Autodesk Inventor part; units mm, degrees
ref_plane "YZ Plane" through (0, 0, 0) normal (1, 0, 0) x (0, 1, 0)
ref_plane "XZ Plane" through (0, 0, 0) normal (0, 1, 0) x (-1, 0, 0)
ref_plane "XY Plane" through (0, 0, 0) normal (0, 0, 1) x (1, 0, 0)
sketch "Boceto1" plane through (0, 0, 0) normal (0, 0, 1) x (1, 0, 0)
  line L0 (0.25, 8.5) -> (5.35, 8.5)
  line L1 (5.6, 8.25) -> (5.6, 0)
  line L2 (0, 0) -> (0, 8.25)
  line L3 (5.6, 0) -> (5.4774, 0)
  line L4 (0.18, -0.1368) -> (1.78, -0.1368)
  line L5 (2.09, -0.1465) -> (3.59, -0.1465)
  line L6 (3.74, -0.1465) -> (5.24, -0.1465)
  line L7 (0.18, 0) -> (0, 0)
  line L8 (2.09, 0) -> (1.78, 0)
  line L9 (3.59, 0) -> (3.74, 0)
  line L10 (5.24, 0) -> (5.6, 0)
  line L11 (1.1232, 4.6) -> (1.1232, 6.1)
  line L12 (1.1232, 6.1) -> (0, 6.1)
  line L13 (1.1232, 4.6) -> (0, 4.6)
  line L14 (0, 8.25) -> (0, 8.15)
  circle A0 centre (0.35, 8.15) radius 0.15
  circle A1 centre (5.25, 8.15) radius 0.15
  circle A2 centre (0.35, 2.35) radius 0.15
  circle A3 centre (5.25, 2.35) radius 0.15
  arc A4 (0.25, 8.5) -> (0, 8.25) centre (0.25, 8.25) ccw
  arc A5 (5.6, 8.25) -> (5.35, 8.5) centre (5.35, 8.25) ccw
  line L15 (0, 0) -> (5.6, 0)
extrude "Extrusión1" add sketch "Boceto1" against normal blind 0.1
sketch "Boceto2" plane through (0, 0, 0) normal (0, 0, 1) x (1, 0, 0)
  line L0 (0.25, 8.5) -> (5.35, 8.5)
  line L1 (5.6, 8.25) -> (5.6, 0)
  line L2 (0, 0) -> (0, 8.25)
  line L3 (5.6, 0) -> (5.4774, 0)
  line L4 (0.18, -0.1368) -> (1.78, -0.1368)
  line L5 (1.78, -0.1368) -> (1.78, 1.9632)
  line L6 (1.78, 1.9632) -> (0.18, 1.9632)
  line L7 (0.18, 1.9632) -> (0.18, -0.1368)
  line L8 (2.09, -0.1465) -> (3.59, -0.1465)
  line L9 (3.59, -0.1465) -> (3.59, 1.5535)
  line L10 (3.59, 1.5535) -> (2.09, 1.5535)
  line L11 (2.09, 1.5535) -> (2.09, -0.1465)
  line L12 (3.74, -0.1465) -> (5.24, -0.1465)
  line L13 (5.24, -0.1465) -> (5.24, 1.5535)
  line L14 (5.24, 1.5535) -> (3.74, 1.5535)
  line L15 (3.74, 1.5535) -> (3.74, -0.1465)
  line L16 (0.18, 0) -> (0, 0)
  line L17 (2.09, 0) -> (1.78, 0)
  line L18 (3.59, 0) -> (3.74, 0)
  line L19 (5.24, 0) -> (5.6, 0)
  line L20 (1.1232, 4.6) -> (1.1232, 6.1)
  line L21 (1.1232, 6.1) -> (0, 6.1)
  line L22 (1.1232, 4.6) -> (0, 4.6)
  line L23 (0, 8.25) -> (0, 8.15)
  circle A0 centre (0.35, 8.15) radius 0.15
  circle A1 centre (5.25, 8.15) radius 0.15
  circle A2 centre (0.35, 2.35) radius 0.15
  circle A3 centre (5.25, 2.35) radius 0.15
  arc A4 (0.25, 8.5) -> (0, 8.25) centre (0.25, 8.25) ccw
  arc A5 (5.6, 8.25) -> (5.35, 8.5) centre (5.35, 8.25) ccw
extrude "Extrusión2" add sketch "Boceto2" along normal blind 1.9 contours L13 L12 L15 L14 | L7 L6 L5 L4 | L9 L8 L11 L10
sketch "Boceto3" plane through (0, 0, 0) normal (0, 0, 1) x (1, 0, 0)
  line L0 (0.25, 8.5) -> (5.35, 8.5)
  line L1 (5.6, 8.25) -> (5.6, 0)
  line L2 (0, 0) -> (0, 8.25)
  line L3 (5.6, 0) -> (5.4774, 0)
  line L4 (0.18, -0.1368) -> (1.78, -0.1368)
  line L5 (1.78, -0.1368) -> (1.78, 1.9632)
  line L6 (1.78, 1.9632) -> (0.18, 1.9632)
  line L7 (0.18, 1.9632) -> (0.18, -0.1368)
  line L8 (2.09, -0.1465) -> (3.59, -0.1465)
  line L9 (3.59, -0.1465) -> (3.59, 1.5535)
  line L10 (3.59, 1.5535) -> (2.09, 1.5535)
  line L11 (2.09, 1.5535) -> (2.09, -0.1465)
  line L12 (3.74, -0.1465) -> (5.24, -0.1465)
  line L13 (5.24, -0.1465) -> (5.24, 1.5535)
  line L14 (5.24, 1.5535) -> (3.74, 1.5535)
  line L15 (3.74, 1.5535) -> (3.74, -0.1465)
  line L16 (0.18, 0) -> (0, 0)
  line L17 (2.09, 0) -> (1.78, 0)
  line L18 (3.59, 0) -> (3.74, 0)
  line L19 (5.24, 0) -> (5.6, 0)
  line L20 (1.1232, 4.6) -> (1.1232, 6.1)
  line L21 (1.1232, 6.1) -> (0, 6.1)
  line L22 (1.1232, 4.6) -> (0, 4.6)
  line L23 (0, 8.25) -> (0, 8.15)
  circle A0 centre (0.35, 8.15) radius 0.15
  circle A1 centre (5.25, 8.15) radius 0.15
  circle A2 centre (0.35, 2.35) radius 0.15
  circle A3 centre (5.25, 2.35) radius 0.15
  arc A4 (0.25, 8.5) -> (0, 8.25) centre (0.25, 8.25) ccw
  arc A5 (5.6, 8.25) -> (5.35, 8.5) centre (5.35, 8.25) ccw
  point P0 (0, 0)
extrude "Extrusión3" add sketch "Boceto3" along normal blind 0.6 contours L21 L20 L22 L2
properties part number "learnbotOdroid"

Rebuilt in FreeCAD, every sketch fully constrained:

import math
import FreeCAD as App
import Part
import Sketcher

V = App.Vector
Q = App.Units.Quantity

doc = App.newDocument("Part")
body = doc.addObject("PartDesign::Body", "Body")

sketch1 = doc.addObject("Sketcher::SketchObject", "Sketch")
body.addObject(sketch1)
sketch1.AttachmentSupport = (doc.XY_Plane, [""])
sketch1.MapMode = "FlatFace"
sketch1.addGeometry([
    Part.LineSegment(V(5.35, 8.5, 0), V(0.25, 8.5, 0)),
    Part.ArcOfCircle(Part.Circle(V(0.25, 8.25, 0), V(0, 0, 1), 0.25), math.radians(90), math.radians(180)),
    Part.LineSegment(V(0, 8.25, 0), V(0, 0, 0)),
    Part.LineSegment(V(0, 0, 0), V(5.6, 0, 0)),
    Part.LineSegment(V(5.6, 0, 0), V(5.6, 8.25, 0)),
    Part.ArcOfCircle(Part.Circle(V(5.35, 8.25, 0), V(0, 0, 1), 0.25), math.radians(0), math.radians(90)),
    Part.Circle(V(0.35, 2.35, 0), V(0, 0, 1), 0.15),
    Part.Circle(V(5.25, 2.35, 0), V(0, 0, 1), 0.15),
    Part.Circle(V(0.35, 8.15, 0), V(0, 0, 1), 0.15),
    Part.Circle(V(5.25, 8.15, 0), V(0, 0, 1), 0.15),
], False)
sketch1.addConstraint([
    Sketcher.Constraint("Tangent", 0, 2, 1, 1),
    Sketcher.Constraint("Tangent", 1, 2, 2, 1),
    Sketcher.Constraint("Coincident", 2, 2, 3, 1),
    Sketcher.Constraint("Coincident", 3, 2, 4, 1),
    Sketcher.Constraint("Tangent", 4, 2, 5, 1),
    Sketcher.Constraint("Tangent", 5, 2, 0, 1),
    Sketcher.Constraint("Horizontal", 0),
    Sketcher.Constraint("Vertical", 2),
    Sketcher.Constraint("Horizontal", 3),
    Sketcher.Constraint("Vertical", 4),
    Sketcher.Constraint("Coincident", 2, 2, -1, 1),
    Sketcher.Constraint("Equal", 1, 5),
    Sketcher.Constraint("Equal", 6, 7),
    Sketcher.Constraint("Equal", 7, 8),
    Sketcher.Constraint("Equal", 8, 9),
    Sketcher.Constraint("Horizontal", 6, 3, 7, 3),
    Sketcher.Constraint("Horizontal", 8, 3, 9, 3),
    Sketcher.Constraint("Vertical", 6, 3, 8, 3),
    Sketcher.Constraint("Vertical", 7, 3, 9, 3),
    Sketcher.Constraint("Diameter", 6, Q("0.3 mm")),
    Sketcher.Constraint("Radius", 1, Q("0.25 mm")),
    Sketcher.Constraint("DistanceX", 0, 2, 0, 1, Q("5.1 mm")),
    Sketcher.Constraint("DistanceX", 6, 3, 5, 3, Q("5 mm")),
    Sketcher.Constraint("DistanceX", 1, 3, 7, 3, Q("5 mm")),
    Sketcher.Constraint("DistanceY", 2, 2, 2, 1, Q("8.25 mm")),
    Sketcher.Constraint("DistanceY", 6, 3, 1, 3, Q("5.9 mm")),
    Sketcher.Constraint("DistanceY", 8, 3, 1, 3, Q("0.1 mm")),
])
pad1 = doc.addObject("PartDesign::Pad", "Pad")
body.addObject(pad1)
pad1.Profile = sketch1
pad1.Length = 0.1
pad1.Reversed = True

sketch2 = doc.addObject("Sketcher::SketchObject", "Sketch001")
body.addObject(sketch2)
sketch2.AttachmentSupport = (doc.XY_Plane, [""])
sketch2.MapMode = "FlatFace"
sketch2.addGeometry([
    Part.LineSegment(V(5.24, -0.1465, 0), V(5.24, 1.5535, 0)),
    Part.LineSegment(V(5.24, 1.5535, 0), V(3.74, 1.5535, 0)),
    Part.LineSegment(V(3.74, 1.5535, 0), V(3.74, -0.1465, 0)),
    Part.LineSegment(V(3.74, -0.1465, 0), V(5.24, -0.1465, 0)),
    Part.LineSegment(V(0.18, 1.9632, 0), V(0.18, -0.1368, 0)),
    Part.LineSegment(V(0.18, -0.1368, 0), V(1.78, -0.1368, 0)),
    Part.LineSegment(V(1.78, -0.1368, 0), V(1.78, 1.9632, 0)),
    Part.LineSegment(V(1.78, 1.9632, 0), V(0.18, 1.9632, 0)),
    Part.LineSegment(V(3.59, -0.1465, 0), V(3.59, 1.5535, 0)),
    Part.LineSegment(V(3.59, 1.5535, 0), V(2.09, 1.5535, 0)),
    Part.LineSegment(V(2.09, 1.5535, 0), V(2.09, -0.1465, 0)),
    Part.LineSegment(V(2.09, -0.1465, 0), V(3.59, -0.1465, 0)),
], False)
sketch2.addConstraint([
    Sketcher.Constraint("Coincident", 0, 2, 1, 1),
    Sketcher.Constraint("Coincident", 1, 2, 2, 1),
    Sketcher.Constraint("Coincident", 2, 2, 3, 1),
    Sketcher.Constraint("Coincident", 3, 2, 0, 1),
    Sketcher.Constraint("Coincident", 4, 2, 5, 1),
    Sketcher.Constraint("Coincident", 5, 2, 6, 1),
    Sketcher.Constraint("Coincident", 6, 2, 7, 1),
    Sketcher.Constraint("Coincident", 7, 2, 4, 1),
    Sketcher.Constraint("Coincident", 8, 2, 9, 1),
    Sketcher.Constraint("Coincident", 9, 2, 10, 1),
    Sketcher.Constraint("Coincident", 10, 2, 11, 1),
    Sketcher.Constraint("Coincident", 11, 2, 8, 1),
    Sketcher.Constraint("Vertical", 0),
    Sketcher.Constraint("Horizontal", 1),
    Sketcher.Constraint("Vertical", 2),
    Sketcher.Constraint("Horizontal", 3),
    Sketcher.Constraint("Vertical", 4),
    Sketcher.Constraint("Horizontal", 5),
    Sketcher.Constraint("Vertical", 6),
    Sketcher.Constraint("Horizontal", 7),
    Sketcher.Constraint("Vertical", 8),
    Sketcher.Constraint("Horizontal", 9),
    Sketcher.Constraint("Vertical", 10),
    Sketcher.Constraint("Horizontal", 11),
    Sketcher.Constraint("Horizontal", 1, 2, 8, 2),
    Sketcher.Constraint("Horizontal", 3, 2, 10, 2),
    Sketcher.Constraint("Equal", 3, 9),
    Sketcher.Constraint("DistanceX", 1, 2, 1, 1, Q("1.5 mm")),
    Sketcher.Constraint("DistanceX", 5, 1, 5, 2, Q("1.6 mm")),
    Sketcher.Constraint("DistanceY", 0, 1, 0, 2, Q("1.7 mm")),
    Sketcher.Constraint("DistanceY", 4, 2, 4, 1, Q("2.1 mm")),
    Sketcher.Constraint("DistanceX", -1, 1, 0, 2, Q("5.24 mm")),
    Sketcher.Constraint("DistanceX", -1, 1, 4, 2, Q("0.18 mm")),
    Sketcher.Constraint("DistanceX", -1, 1, 8, 2, Q("3.59 mm")),
    Sketcher.Constraint("DistanceY", -1, 1, 0, 2, Q("1.5535 mm")),
    Sketcher.Constraint("DistanceY", 4, 2, -1, 1, Q("0.1368 mm")),
])
pad2 = doc.addObject("PartDesign::Pad", "Pad001")
body.addObject(pad2)
pad2.Profile = sketch2
pad2.Length = 1.9

sketch3 = doc.addObject("Sketcher::SketchObject", "Sketch002")
body.addObject(sketch3)
sketch3.AttachmentSupport = (doc.XY_Plane, [""])
sketch3.MapMode = "FlatFace"
sketch3.addGeometry([
    Part.LineSegment(V(1.1232, 6.1, 0), V(0, 6.1, 0)),
    Part.LineSegment(V(0, 6.1, 0), V(0, 4.6, 0)),
    Part.LineSegment(V(0, 4.6, 0), V(1.1232, 4.6, 0)),
    Part.LineSegment(V(1.1232, 4.6, 0), V(1.1232, 6.1, 0)),
], False)
sketch3.addConstraint([
    Sketcher.Constraint("Coincident", 0, 2, 1, 1),
    Sketcher.Constraint("Coincident", 1, 2, 2, 1),
    Sketcher.Constraint("Coincident", 2, 2, 3, 1),
    Sketcher.Constraint("Coincident", 3, 2, 0, 1),
    Sketcher.Constraint("Horizontal", 0),
    Sketcher.Constraint("Vertical", 1),
    Sketcher.Constraint("Horizontal", 2),
    Sketcher.Constraint("Vertical", 3),
    Sketcher.Constraint("PointOnObject", 0, 2, -2),
    Sketcher.Constraint("DistanceY", 1, 2, 1, 1, Q("1.5 mm")),
    Sketcher.Constraint("DistanceY", -1, 1, 0, 2, Q("6.1 mm")),
    Sketcher.Constraint("DistanceX", 0, 2, 0, 1, Q("1.1232 mm")),
])
pad3 = doc.addObject("PartDesign::Pad", "Pad002")
body.addObject(pad3)
pad3.Profile = sketch3
pad3.Length = 0.6

doc.recompute()
